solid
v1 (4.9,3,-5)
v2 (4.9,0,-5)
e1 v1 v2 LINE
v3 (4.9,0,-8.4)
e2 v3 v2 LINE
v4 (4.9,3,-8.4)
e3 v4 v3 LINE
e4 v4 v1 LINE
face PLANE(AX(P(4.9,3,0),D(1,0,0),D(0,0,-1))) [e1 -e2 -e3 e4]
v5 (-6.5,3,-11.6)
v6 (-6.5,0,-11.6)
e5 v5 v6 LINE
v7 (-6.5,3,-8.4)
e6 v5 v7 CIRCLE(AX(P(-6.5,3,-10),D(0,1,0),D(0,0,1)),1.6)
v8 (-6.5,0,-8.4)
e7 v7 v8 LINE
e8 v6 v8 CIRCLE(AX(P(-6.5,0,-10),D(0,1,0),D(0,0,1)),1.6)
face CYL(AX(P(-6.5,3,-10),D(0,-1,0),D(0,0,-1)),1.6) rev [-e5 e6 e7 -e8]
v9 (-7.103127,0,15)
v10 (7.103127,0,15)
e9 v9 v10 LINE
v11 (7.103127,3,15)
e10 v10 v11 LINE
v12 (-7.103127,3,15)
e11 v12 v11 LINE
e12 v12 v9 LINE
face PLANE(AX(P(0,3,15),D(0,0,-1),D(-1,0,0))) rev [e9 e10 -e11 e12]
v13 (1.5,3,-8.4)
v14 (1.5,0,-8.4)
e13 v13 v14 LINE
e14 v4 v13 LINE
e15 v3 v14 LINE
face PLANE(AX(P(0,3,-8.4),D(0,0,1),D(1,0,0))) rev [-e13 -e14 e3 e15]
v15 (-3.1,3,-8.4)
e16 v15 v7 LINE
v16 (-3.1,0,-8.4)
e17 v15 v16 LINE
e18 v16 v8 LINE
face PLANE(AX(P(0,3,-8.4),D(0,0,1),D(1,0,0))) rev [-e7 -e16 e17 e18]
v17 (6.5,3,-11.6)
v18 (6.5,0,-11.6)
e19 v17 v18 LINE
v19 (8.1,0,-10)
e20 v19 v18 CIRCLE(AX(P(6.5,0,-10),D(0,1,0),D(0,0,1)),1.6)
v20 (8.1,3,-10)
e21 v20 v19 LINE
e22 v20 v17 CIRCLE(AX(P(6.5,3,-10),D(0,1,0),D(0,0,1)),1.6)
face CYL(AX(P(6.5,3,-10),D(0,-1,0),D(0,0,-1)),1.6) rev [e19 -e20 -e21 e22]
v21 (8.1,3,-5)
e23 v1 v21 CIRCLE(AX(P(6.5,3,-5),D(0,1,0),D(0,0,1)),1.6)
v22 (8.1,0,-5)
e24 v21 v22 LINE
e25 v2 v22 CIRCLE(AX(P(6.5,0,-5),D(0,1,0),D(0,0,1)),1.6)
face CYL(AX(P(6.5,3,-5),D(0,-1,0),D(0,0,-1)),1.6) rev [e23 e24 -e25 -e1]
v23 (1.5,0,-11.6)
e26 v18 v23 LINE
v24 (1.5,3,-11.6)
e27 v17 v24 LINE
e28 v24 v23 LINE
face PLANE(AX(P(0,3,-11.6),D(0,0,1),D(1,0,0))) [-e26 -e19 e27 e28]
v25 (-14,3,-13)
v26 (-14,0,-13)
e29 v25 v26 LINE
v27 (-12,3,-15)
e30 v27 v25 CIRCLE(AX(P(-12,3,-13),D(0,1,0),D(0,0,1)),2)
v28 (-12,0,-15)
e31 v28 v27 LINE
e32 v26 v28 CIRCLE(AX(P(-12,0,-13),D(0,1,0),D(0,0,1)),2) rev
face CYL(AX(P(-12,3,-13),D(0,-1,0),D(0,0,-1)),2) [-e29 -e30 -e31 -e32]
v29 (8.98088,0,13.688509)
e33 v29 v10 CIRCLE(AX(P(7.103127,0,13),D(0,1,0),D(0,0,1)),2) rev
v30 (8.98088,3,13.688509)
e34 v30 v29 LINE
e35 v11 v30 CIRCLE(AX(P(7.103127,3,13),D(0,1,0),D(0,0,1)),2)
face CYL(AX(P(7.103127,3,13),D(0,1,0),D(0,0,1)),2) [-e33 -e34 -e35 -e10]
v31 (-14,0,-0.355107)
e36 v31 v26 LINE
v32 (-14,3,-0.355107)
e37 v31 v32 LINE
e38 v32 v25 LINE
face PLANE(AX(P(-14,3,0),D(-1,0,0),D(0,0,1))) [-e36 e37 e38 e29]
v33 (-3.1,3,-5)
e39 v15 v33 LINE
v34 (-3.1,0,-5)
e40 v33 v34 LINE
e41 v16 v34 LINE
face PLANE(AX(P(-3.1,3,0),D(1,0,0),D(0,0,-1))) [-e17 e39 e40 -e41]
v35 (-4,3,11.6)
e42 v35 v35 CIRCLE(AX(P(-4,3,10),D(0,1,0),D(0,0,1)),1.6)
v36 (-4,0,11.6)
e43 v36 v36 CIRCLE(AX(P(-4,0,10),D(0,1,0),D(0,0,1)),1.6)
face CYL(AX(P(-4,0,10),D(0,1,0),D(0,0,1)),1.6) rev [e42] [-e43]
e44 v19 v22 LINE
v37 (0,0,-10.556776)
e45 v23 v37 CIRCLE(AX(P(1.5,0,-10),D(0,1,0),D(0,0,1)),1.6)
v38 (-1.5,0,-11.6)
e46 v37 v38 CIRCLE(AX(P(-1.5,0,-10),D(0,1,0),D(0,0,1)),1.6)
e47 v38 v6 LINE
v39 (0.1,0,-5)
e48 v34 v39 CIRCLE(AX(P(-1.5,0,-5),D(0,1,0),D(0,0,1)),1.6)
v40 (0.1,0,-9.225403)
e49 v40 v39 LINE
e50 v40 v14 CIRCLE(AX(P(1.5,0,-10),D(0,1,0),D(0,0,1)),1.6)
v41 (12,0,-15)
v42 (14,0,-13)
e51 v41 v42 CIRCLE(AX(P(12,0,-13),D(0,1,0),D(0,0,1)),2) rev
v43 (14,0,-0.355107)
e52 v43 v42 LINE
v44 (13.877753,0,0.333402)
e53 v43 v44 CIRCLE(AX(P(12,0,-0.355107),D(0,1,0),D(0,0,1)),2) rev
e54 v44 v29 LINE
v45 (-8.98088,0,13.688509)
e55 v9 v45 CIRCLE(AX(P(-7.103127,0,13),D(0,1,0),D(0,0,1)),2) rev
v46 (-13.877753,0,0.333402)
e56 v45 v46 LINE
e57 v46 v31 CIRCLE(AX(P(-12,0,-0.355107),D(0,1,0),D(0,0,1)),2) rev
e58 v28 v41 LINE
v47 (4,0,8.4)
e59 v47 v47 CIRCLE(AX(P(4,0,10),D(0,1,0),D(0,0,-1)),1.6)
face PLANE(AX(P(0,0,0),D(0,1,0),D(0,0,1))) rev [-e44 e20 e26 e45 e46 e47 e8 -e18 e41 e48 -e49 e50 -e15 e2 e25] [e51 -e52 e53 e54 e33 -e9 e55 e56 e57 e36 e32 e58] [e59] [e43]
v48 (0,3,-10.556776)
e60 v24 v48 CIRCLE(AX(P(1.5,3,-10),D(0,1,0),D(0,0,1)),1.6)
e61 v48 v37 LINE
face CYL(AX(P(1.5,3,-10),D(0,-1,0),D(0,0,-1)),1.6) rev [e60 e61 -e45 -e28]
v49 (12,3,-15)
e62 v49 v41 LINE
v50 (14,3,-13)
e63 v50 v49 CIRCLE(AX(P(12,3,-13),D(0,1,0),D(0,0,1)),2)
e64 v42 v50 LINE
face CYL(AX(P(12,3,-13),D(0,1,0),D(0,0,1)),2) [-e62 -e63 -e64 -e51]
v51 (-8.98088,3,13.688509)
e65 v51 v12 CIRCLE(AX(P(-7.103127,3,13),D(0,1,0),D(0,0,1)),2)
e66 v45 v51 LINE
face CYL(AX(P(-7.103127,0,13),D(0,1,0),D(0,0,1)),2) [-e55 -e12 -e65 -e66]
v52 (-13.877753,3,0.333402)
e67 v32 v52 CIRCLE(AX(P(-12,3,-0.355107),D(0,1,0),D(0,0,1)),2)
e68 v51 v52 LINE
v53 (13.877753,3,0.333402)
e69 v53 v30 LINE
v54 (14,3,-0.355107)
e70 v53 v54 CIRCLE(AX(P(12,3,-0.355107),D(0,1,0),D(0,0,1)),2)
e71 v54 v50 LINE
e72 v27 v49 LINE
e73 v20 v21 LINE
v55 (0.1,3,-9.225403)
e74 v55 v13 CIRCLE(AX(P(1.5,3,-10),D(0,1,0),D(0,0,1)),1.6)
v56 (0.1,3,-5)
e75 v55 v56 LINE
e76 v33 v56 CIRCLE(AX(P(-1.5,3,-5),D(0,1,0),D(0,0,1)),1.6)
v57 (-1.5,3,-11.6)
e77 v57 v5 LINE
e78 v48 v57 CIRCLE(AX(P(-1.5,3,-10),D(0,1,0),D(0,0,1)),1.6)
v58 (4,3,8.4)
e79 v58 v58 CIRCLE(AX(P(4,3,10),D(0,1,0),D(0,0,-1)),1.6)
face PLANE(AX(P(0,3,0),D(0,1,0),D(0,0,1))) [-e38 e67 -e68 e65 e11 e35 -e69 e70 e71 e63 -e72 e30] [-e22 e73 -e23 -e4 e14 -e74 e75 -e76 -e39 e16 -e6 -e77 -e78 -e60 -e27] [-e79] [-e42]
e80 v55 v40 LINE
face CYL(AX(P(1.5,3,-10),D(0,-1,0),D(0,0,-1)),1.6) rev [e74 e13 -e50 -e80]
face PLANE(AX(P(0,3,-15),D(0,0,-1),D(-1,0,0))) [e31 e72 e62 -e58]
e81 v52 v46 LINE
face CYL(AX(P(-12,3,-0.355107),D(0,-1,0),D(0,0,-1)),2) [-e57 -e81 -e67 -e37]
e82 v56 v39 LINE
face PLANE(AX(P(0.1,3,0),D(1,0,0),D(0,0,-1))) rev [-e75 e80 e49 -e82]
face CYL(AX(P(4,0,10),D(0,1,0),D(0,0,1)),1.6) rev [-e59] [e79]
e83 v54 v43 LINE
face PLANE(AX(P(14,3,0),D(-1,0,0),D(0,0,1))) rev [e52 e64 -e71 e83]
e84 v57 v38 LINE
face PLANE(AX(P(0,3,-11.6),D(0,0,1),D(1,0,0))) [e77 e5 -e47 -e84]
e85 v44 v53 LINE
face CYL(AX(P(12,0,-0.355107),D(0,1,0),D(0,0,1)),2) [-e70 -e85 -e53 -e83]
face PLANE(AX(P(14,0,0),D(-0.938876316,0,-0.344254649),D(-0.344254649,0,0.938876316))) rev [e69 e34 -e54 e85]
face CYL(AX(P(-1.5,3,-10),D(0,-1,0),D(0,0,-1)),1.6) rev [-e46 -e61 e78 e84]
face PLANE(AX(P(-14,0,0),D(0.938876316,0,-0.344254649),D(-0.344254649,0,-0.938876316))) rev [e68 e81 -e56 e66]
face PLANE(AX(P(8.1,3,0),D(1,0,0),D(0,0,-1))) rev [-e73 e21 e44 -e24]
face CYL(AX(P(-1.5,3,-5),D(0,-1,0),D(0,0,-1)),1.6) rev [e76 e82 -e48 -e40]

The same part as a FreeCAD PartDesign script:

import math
import FreeCAD as App
import Part
import Sketcher

V = App.Vector


def edges_at(feature, points):
    """Names of the edges that pass closest to the given points."""
    edges = feature.Shape.Edges
    near = lambda p: min(range(len(edges)), key=lambda i: edges[i].distToShape(Part.Vertex(*p))[0])
    return sorted({f"Edge{near(p) + 1}" for p in points})

doc = App.newDocument("Part")
body = doc.addObject("PartDesign::Body", "Body")

sketch1 = body.newObject("Sketcher::SketchObject", "Sketch")
sketch1.AttachmentSupport = (doc.getObject("XZ_Plane"), [""])
sketch1.MapMode = "FlatFace"
sketch1.addGeometry(Part.LineSegment(V(-14, -15, 0), V(-14, 15, 0)), False)
sketch1.addGeometry(Part.LineSegment(V(-14, 15, 0), V(14, 15, 0)), False)
sketch1.addGeometry(Part.LineSegment(V(14, 15, 0), V(14, -15, 0)), False)
sketch1.addGeometry(Part.LineSegment(V(14, -15, 0), V(-14, -15, 0)), False)
sketch1.addGeometry(Part.LineSegment(V(4.9, -8.4, 0), V(1.5, -8.4, 0)), False)
sketch1.addGeometry(Part.ArcOfCircle(Part.Circle(V(1.5, -10, 0), V(0, 0, 1), 1.6), math.radians(90), math.radians(151.044976)), False)
sketch1.addGeometry(Part.LineSegment(V(0.1, -9.225403, 0), V(0.1, -5, 0)), False)
sketch1.addGeometry(Part.ArcOfCircle(Part.Circle(V(-1.5, -5, 0), V(0, 0, 1), 1.6), math.radians(0), math.radians(180)), False)
sketch1.addGeometry(Part.LineSegment(V(-3.1, -5, 0), V(-3.1, -8.4, 0)), False)
sketch1.addGeometry(Part.LineSegment(V(-3.1, -8.4, 0), V(-6.5, -8.4, 0)), False)
sketch1.addGeometry(Part.ArcOfCircle(Part.Circle(V(-6.5, -10, 0), V(0, 0, 1), 1.6), math.radians(90), math.radians(270)), False)
sketch1.addGeometry(Part.LineSegment(V(-6.5, -11.6, 0), V(-1.5, -11.6, 0)), False)
sketch1.addGeometry(Part.ArcOfCircle(Part.Circle(V(-1.5, -10, 0), V(0, 0, 1), 1.6), math.radians(-90), math.radians(-20.364135)), False)
sketch1.addGeometry(Part.ArcOfCircle(Part.Circle(V(1.5, -10, 0), V(0, 0, 1), 1.6), math.radians(-159.635865), math.radians(-90)), False)
sketch1.addGeometry(Part.LineSegment(V(1.5, -11.6, 0), V(6.5, -11.6, 0)), False)
sketch1.addGeometry(Part.ArcOfCircle(Part.Circle(V(6.5, -10, 0), V(0, 0, 1), 1.6), math.radians(-90), math.radians(0)), False)
sketch1.addGeometry(Part.LineSegment(V(8.1, -10, 0), V(8.1, -5, 0)), False)
sketch1.addGeometry(Part.ArcOfCircle(Part.Circle(V(6.5, -5, 0), V(0, 0, 1), 1.6), math.radians(0), math.radians(180)), False)
sketch1.addGeometry(Part.LineSegment(V(4.9, -5, 0), V(4.9, -8.4, 0)), False)
sketch1.addConstraint(Sketcher.Constraint("Coincident", 0, 2, 1, 1))
sketch1.addConstraint(Sketcher.Constraint("Coincident", 1, 2, 2, 1))
sketch1.addConstraint(Sketcher.Constraint("Coincident", 2, 2, 3, 1))
sketch1.addConstraint(Sketcher.Constraint("Coincident", 3, 2, 0, 1))
sketch1.addConstraint(Sketcher.Constraint("Tangent", 4, 2, 5, 1))
sketch1.addConstraint(Sketcher.Constraint("Coincident", 5, 2, 6, 1))
sketch1.addConstraint(Sketcher.Constraint("Tangent", 6, 2, 7, 1))
sketch1.addConstraint(Sketcher.Constraint("Tangent", 7, 2, 8, 1))
sketch1.addConstraint(Sketcher.Constraint("Coincident", 8, 2, 9, 1))
sketch1.addConstraint(Sketcher.Constraint("Tangent", 9, 2, 10, 1))
sketch1.addConstraint(Sketcher.Constraint("Tangent", 10, 2, 11, 1))
sketch1.addConstraint(Sketcher.Constraint("Tangent", 11, 2, 12, 1))
sketch1.addConstraint(Sketcher.Constraint("Coincident", 12, 2, 13, 1))
sketch1.addConstraint(Sketcher.Constraint("Tangent", 13, 2, 14, 1))
sketch1.addConstraint(Sketcher.Constraint("Tangent", 14, 2, 15, 1))
sketch1.addConstraint(Sketcher.Constraint("Tangent", 15, 2, 16, 1))
sketch1.addConstraint(Sketcher.Constraint("Tangent", 16, 2, 17, 1))
sketch1.addConstraint(Sketcher.Constraint("Tangent", 17, 2, 18, 1))
sketch1.addConstraint(Sketcher.Constraint("Coincident", 18, 2, 4, 1))
sketch1.addConstraint(Sketcher.Constraint("Vertical", 0))
sketch1.addConstraint(Sketcher.Constraint("Horizontal", 1))
sketch1.addConstraint(Sketcher.Constraint("Vertical", 2))
sketch1.addConstraint(Sketcher.Constraint("Horizontal", 3))
sketch1.addConstraint(Sketcher.Constraint("Horizontal", 4))
sketch1.addConstraint(Sketcher.Constraint("Vertical", 6))
sketch1.addConstraint(Sketcher.Constraint("Vertical", 8))
sketch1.addConstraint(Sketcher.Constraint("Horizontal", 9))
sketch1.addConstraint(Sketcher.Constraint("Horizontal", 11))
sketch1.addConstraint(Sketcher.Constraint("Horizontal", 14))
sketch1.addConstraint(Sketcher.Constraint("Vertical", 16))
sketch1.addConstraint(Sketcher.Constraint("Vertical", 18))
sketch1.addConstraint(Sketcher.Constraint("Coincident", 13, 3, 5, 3))
sketch1.addConstraint(Sketcher.Constraint("Equal", 5, 7))
sketch1.addConstraint(Sketcher.Constraint("Equal", 7, 10))
sketch1.addConstraint(Sketcher.Constraint("Equal", 10, 12))
sketch1.addConstraint(Sketcher.Constraint("Equal", 12, 13))
sketch1.addConstraint(Sketcher.Constraint("Equal", 13, 15))
sketch1.addConstraint(Sketcher.Constraint("Equal", 15, 17))
sketch1.addConstraint(Sketcher.Constraint("Symmetric", 0, 2, 2, 2, -1, 1))
sketch1.addConstraint(Sketcher.Constraint("Symmetric", 5, 3, 12, 3, -2))
sketch1.addConstraint(Sketcher.Constraint("Horizontal", 7, 3, 17, 3))
sketch1.addConstraint(Sketcher.Constraint("Vertical", 7, 3, 12, 3))
sketch1.addConstraint(Sketcher.Constraint("Equal", 4, 9))
sketch1.addConstraint(Sketcher.Constraint("Equal", 9, 8))
sketch1.addConstraint(Sketcher.Constraint("Radius", 5, 1.6))
sketch1.addConstraint(Sketcher.Constraint("DistanceX", 1, 1, 1, 2, 28.0))
sketch1.addConstraint(Sketcher.Constraint("DistanceX", 11, 1, 11, 2, 5.0))
sketch1.addConstraint(Sketcher.Constraint("DistanceY", 0, 1, 0, 2, 30.0))
sketch1.addConstraint(Sketcher.Constraint("DistanceY", 5, 3, -1, 1, 10.0))
sketch1.addConstraint(Sketcher.Constraint("DistanceX", 7, 3, 5, 3, 3.0))
pad1 = body.newObject("PartDesign::Pad", "Pad")
pad1.Profile = sketch1
pad1.Length = 3
pad1.Reversed = True

sketch2 = body.newObject("Sketcher::SketchObject", "Sketch001")
sketch2.AttachmentSupport = (doc.getObject("XZ_Plane"), [""])
sketch2.MapMode = "FlatFace"
sketch2.AttachmentOffset = App.Placement(V(0, 0, -3), App.Rotation())
sketch2.addGeometry(Part.Circle(V(-4, 10, 0), V(0, 0, 1), 1.6), False)
sketch2.addGeometry(Part.Circle(V(4, 10, 0), V(0, 0, 1), 1.6), False)
sketch2.addGeometry(Part.LineSegment(V(14, 0, 0), V(8.5, 15, 0)), False)
sketch2.addGeometry(Part.LineSegment(V(8.5, 15, 0), V(14, 15, 0)), False)
sketch2.addGeometry(Part.LineSegment(V(14, 15, 0), V(14, 0, 0)), False)
sketch2.addGeometry(Part.LineSegment(V(-14, 15, 0), V(-8.5, 15, 0)), False)
sketch2.addGeometry(Part.LineSegment(V(-8.5, 15, 0), V(-14, 0, 0)), False)
sketch2.addGeometry(Part.LineSegment(V(-14, 0, 0), V(-14, 15, 0)), False)
sketch2.addConstraint(Sketcher.Constraint("Coincident", 2, 2, 3, 1))
sketch2.addConstraint(Sketcher.Constraint("Coincident", 3, 2, 4, 1))
sketch2.addConstraint(Sketcher.Constraint("Coincident", 4, 2, 2, 1))
sketch2.addConstraint(Sketcher.Constraint("Coincident", 5, 2, 6, 1))
sketch2.addConstraint(Sketcher.Constraint("Coincident", 6, 2, 7, 1))
sketch2.addConstraint(Sketcher.Constraint("Coincident", 7, 2, 5, 1))
sketch2.addConstraint(Sketcher.Constraint("Horizontal", 3))
sketch2.addConstraint(Sketcher.Constraint("Vertical", 4))
sketch2.addConstraint(Sketcher.Constraint("Horizontal", 5))
sketch2.addConstraint(Sketcher.Constraint("Vertical", 7))
sketch2.addConstraint(Sketcher.Constraint("Equal", 0, 1))
sketch2.addConstraint(Sketcher.Constraint("Symmetric", 4, 2, 6, 2, -1, 1))
sketch2.addConstraint(Sketcher.Constraint("Symmetric", 0, 3, 1, 3, -2))
sketch2.addConstraint(Sketcher.Constraint("Symmetric", 2, 2, 5, 2, -2))
sketch2.addConstraint(Sketcher.Constraint("PointOnObject", 4, 2, -1))
sketch2.addConstraint(Sketcher.Constraint("Diameter", 0, 3.2))
sketch2.addConstraint(Sketcher.Constraint("DistanceY", 4, 2, 4, 1, 15.0))
sketch2.addConstraint(Sketcher.Constraint("DistanceX", 3, 1, 3, 2, 5.5))
sketch2.addConstraint(Sketcher.Constraint("DistanceX", 0, 3, -1, 1, 4.0))
sketch2.addConstraint(Sketcher.Constraint("DistanceY", -1, 1, 0, 3, 10.0))
sketch2.addConstraint(Sketcher.Constraint("DistanceX", -1, 1, 3, 2, 14.0))
pocket1 = body.newObject("PartDesign::Pocket", "Pocket")
pocket1.Profile = sketch2
pocket1.Type = "ThroughAll"
pocket1.Reversed = True
doc.recompute()

fillet = body.newObject("PartDesign::Fillet", "Fillet")
fillet.Base = (pocket1, edges_at(pocket1, [
    (-14, 1.5, -15),
    (14, 1.5, -15),
    (14, 1.5, 0),
    (8.5, 1.5, 15),
    (-14, 1.5, 0),
    (-8.5, 1.5, 15),
]))
fillet.Radius = 2

doc.recompute()
